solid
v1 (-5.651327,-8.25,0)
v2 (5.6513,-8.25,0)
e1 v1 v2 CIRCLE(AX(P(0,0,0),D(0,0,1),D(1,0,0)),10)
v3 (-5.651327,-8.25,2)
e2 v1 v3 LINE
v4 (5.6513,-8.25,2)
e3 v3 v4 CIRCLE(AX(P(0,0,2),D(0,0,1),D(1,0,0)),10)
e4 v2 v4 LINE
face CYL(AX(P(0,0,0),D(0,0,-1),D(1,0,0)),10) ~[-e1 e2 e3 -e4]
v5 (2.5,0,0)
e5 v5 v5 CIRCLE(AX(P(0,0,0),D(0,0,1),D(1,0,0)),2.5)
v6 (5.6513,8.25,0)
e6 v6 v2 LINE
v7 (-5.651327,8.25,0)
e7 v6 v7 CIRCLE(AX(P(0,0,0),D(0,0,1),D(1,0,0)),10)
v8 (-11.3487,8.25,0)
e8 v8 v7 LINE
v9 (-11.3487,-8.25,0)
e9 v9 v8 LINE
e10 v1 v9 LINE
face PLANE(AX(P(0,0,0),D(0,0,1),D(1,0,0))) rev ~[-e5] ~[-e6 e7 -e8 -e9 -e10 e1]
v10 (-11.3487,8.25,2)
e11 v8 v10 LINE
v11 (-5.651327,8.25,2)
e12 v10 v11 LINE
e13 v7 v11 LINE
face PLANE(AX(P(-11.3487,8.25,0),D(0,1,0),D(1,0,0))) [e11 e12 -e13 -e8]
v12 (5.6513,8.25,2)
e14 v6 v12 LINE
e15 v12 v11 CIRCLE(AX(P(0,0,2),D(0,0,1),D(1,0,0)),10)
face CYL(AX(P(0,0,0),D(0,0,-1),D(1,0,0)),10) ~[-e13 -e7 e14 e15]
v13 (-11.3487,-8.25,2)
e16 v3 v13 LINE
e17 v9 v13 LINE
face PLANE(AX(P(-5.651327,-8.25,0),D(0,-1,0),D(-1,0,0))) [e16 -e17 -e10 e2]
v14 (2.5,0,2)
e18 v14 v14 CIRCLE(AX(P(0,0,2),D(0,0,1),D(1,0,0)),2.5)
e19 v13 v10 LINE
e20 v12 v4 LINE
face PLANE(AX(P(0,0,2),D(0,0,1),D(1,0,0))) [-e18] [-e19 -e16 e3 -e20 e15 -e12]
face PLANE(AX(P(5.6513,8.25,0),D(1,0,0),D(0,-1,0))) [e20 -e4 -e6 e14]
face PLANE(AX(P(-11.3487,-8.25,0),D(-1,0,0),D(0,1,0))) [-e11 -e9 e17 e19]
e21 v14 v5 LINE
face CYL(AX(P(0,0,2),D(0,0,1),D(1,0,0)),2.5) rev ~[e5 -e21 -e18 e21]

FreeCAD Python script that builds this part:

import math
import FreeCAD as App
import Part
import Sketcher
from FreeCAD import Vector
Q = App.Units.Quantity

doc = App.newDocument("Part")
body = doc.addObject("PartDesign::Body", "Body")

sketch1 = body.newObject("Sketcher::SketchObject", "Sketch")
sketch1.AttachmentSupport = (doc.getObject("XY_Plane"), [""])
sketch1.MapMode = "FlatFace"
sketch1.addGeometry([
    Part.ArcOfCircle(Part.Circle(Vector(0, 0, 0), Vector(0, 0, 1), 10), math.radians(56), math.radians(124)),
    Part.LineSegment(Vector(-6, 8, 0), Vector(-11, 8, 0)),
    Part.LineSegment(Vector(-11, 8, 0), Vector(-11, -8, 0)),
    Part.LineSegment(Vector(-11, -8, 0), Vector(-6, -8, 0)),
    Part.ArcOfCircle(Part.Circle(Vector(0, 0, 0), Vector(0, 0, 1), 10), math.radians(-124), math.radians(-56)),
    Part.LineSegment(Vector(6, -8, 0), Vector(6, 8, 0)),
], False)
sketch1.addConstraint([
    Sketcher.Constraint("Coincident", 0, 2, 1, 1),
    Sketcher.Constraint("Coincident", 1, 2, 2, 1),
    Sketcher.Constraint("Coincident", 2, 2, 3, 1),
    Sketcher.Constraint("Coincident", 3, 2, 4, 1),
    Sketcher.Constraint("Coincident", 4, 2, 5, 1),
    Sketcher.Constraint("Coincident", 5, 2, 0, 1),
    Sketcher.Constraint("Horizontal", 1),
    Sketcher.Constraint("Vertical", 2),
    Sketcher.Constraint("Horizontal", 3),
    Sketcher.Constraint("Vertical", 5),
    Sketcher.Constraint("Coincident", 0, 3, -1, 1),
    Sketcher.Constraint("Coincident", 4, 3, -1, 1),
    Sketcher.Constraint("Equal", 0, 4),
    Sketcher.Constraint("Horizontal", 3, 2, 4, 2),
    Sketcher.Constraint("Horizontal", 1, 2, 5, 2),
    Sketcher.Constraint("Radius", 0, Q("10 mm")),
    Sketcher.Constraint("DistanceY", 2, 2, 2, 1, Q("16.5 mm")),
    Sketcher.Constraint("DistanceX", 2, 2, 4, 2, Q("17 mm")),
])
pad1 = body.newObject("PartDesign::Pad", "Pad")
pad1.Profile = sketch1
pad1.Length = 2

sketch2 = body.newObject("Sketcher::SketchObject", "Sketch001")
sketch2.AttachmentSupport = (doc.getObject("XY_Plane"), [""])
sketch2.MapMode = "FlatFace"
sketch2.AttachmentOffset = App.Placement(Vector(0, 0, 2), App.Rotation())
sketch2.addGeometry(Part.Circle(Vector(0, 0, 0), Vector(0, 0, 1), 2.5), False)
sketch2.addConstraint([
    Sketcher.Constraint("Coincident", 0, 3, -1, 1),
    Sketcher.Constraint("Diameter", 0, Q("5 mm")),
])
pocket1 = body.newObject("PartDesign::Pocket", "Pocket")
pocket1.Profile = sketch2
pocket1.Length = 2

doc.recompute()
